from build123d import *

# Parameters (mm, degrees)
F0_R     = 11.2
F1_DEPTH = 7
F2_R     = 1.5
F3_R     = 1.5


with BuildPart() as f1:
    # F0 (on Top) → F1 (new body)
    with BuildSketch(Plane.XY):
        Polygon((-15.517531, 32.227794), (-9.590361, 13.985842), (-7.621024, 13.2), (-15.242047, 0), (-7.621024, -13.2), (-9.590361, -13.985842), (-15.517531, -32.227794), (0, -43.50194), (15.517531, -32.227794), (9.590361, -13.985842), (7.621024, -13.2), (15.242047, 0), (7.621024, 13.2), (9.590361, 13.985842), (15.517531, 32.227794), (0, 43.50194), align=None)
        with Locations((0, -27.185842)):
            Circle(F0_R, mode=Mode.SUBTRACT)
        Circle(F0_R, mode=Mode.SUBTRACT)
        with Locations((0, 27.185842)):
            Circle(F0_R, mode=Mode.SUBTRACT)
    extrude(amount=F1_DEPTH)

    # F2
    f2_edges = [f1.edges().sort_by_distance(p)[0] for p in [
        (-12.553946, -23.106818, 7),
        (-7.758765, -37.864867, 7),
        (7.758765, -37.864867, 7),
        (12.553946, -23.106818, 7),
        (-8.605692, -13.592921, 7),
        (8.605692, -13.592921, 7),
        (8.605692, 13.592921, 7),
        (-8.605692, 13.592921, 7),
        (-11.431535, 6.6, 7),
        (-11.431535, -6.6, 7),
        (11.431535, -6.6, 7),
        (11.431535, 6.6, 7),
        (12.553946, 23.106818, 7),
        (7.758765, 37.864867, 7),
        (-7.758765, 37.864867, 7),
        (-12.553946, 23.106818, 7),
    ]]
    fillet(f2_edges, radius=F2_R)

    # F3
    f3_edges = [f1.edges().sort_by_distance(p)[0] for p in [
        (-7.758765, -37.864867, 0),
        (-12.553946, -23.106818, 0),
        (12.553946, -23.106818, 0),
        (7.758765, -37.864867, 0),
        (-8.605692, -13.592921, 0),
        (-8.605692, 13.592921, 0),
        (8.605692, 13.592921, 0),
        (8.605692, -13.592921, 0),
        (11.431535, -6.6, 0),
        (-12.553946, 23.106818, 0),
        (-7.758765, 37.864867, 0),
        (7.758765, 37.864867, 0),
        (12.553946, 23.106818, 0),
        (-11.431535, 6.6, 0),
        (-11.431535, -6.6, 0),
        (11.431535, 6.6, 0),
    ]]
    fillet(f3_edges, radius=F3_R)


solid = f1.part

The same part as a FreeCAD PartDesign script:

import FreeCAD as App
import Part
import Sketcher
from FreeCAD import Vector
Q = App.Units.Quantity


def edges_at(feature, points):
    """Names of the edges that pass closest to the given points."""
    edges = feature.Shape.Edges
    near = lambda p: min(range(len(edges)), key=lambda i: edges[i].distToShape(Part.Vertex(*p))[0])
    return sorted({f"Edge{near(p) + 1}" for p in points})


def add_polygon(sketch, points):
    """Adds a closed chain of lines whose ends are joined by coincident constraints."""
    first, n = sketch.GeometryCount, len(points)
    for a, b in zip(points, points[1:] + points[:1]):
        sketch.addGeometry(Part.LineSegment(App.Vector(*a, 0), App.Vector(*b, 0)), False)
    for i in range(n):
        sketch.addConstraint(Sketcher.Constraint("Coincident", first + i, 2, first + (i + 1) % n, 1))

doc = App.newDocument("Part")
body = doc.addObject("PartDesign::Body", "Body")

# Sketch on XY plane
sketch1 = body.newObject("Sketcher::SketchObject", "Sketch")
sketch1.AttachmentSupport = (doc.getObject("XY_Plane"), [""])
sketch1.MapMode = "FlatFace"
add_polygon(sketch1, [(-15.5, 32.2), (-9.6, 14), (-7.6, 13.2), (-15.2, 0), (-7.6, -13.2), (-9.6, -14), (-15.5, -32.2), (0, -43.5), (15.5, -32.2), (9.6, -14), (7.6, -13.2), (15.2, 0), (7.6, 13.2), (9.6, 14), (15.5, 32.2), (0, 43.5)])  # lines 0-15
sketch1.addGeometry(Part.Circle(Vector(0, -27.2, 0), Vector(0, 0, 1), 11.2), False)  # 16
sketch1.addGeometry(Part.Circle(Vector(0, 0, 0), Vector(0, 0, 1), 11.2), False)  # 17
sketch1.addGeometry(Part.Circle(Vector(0, 27.2, 0), Vector(0, 0, 1), 11.2), False)  # 18
sketch1.addConstraint(Sketcher.Constraint("Coincident", 17, 3, -1, 1))
sketch1.addConstraint(Sketcher.Constraint("Equal", 16, 17))
sketch1.addConstraint(Sketcher.Constraint("Equal", 17, 18))
sketch1.addConstraint(Sketcher.Constraint("Symmetric", 16, 3, 18, 3, -1, 1))
sketch1.addConstraint(Sketcher.Constraint("Symmetric", 0, 2, 8, 2, -1, 1))
sketch1.addConstraint(Sketcher.Constraint("Symmetric", 1, 2, 9, 2, -1, 1))
sketch1.addConstraint(Sketcher.Constraint("Symmetric", 2, 2, 10, 2, -1, 1))
sketch1.addConstraint(Sketcher.Constraint("Symmetric", 3, 2, 11, 2, -1, 1))
sketch1.addConstraint(Sketcher.Constraint("Symmetric", 4, 2, 12, 2, -1, 1))
sketch1.addConstraint(Sketcher.Constraint("Symmetric", 5, 2, 13, 2, -1, 1))
sketch1.addConstraint(Sketcher.Constraint("Symmetric", 6, 2, 14, 2, -1, 1))
sketch1.addConstraint(Sketcher.Constraint("Symmetric", 7, 2, 15, 2, -1, 1))
sketch1.addConstraint(Sketcher.Constraint("Symmetric", 5, 2, 7, 2, -2))
sketch1.addConstraint(Sketcher.Constraint("Symmetric", 4, 2, 8, 2, -2))
sketch1.addConstraint(Sketcher.Constraint("Symmetric", 3, 2, 9, 2, -2))
sketch1.addConstraint(Sketcher.Constraint("PointOnObject", 16, 3, -2))
sketch1.addConstraint(Sketcher.Constraint("PointOnObject", 2, 2, -1))
sketch1.addConstraint(Sketcher.Constraint("PointOnObject", 6, 2, -2))
sketch1.addConstraint(Sketcher.Constraint("Equal", 5, 6))
sketch1.addConstraint(Sketcher.Constraint("Diameter", 16, 22.4))
sketch1.addConstraint(Sketcher.Constraint("Angle", 0, Q("-71.999999 deg")))
sketch1.addConstraint(Sketcher.Constraint("Angle", 2, Q("-119.999998 deg")))
sketch1.addConstraint(Sketcher.Constraint("Angle", 6, Q("-36 deg")))
sketch1.addConstraint(Sketcher.Constraint("DistanceY", -1, 1, 1, 2, 13.2))
sketch1.addConstraint(Sketcher.Constraint("DistanceY", 0, 2, 18, 3, 13.2))
sketch1.addConstraint(Sketcher.Constraint("Distance", 1, 2.120339))
sketch1.addConstraint(Sketcher.Constraint("DistanceX", 0, 2, -1, 1, 9.590361))
sketch1.addConstraint(Sketcher.Constraint("DistanceY", 6, 2, -1, 1, 43.50194))
pad1 = body.newObject("PartDesign::Pad", "Pad")
pad1.Profile = sketch1
pad1.Length = 7
doc.recompute()

fillet = body.newObject("PartDesign::Fillet", "Fillet")
fillet.Base = (pad1, edges_at(pad1, [
    (-12.554, -23.107, 7),
    (-7.759, -37.865, 7),
    (7.759, -37.865, 7),
    (12.554, -23.107, 7),
    (-8.606, -13.593, 7),
    (8.606, -13.593, 7),
    (8.606, 13.593, 7),
    (-8.606, 13.593, 7),
    (-11.432, 6.6, 7),
    (-11.432, -6.6, 7),
    (11.432, -6.6, 7),
    (11.432, 6.6, 7),
    (12.554, 23.107, 7),
    (7.759, 37.865, 7),
    (-7.759, 37.865, 7),
    (-12.554, 23.107, 7),
]))
fillet.Radius = 1.5
doc.recompute()

fillet2 = body.newObject("PartDesign::Fillet", "Fillet001")
fillet2.Base = (fillet, edges_at(fillet, [
    (-7.759, -37.865, 0),
    (-12.554, -23.107, 0),
    (12.554, -23.107, 0),
    (7.759, -37.865, 0),
    (-8.606, -13.593, 0),
    (-8.606, 13.593, 0),
    (8.606, 13.593, 0),
    (8.606, -13.593, 0),
    (11.432, -6.6, 0),
    (-12.554, 23.107, 0),
    (-7.759, 37.865, 0),
    (7.759, 37.865, 0),
    (12.554, 23.107, 0),
    (-11.432, 6.6, 0),
    (-11.432, -6.6, 0),
    (11.432, 6.6, 0),
]))
fillet2.Radius = 1.5

doc.recompute()
